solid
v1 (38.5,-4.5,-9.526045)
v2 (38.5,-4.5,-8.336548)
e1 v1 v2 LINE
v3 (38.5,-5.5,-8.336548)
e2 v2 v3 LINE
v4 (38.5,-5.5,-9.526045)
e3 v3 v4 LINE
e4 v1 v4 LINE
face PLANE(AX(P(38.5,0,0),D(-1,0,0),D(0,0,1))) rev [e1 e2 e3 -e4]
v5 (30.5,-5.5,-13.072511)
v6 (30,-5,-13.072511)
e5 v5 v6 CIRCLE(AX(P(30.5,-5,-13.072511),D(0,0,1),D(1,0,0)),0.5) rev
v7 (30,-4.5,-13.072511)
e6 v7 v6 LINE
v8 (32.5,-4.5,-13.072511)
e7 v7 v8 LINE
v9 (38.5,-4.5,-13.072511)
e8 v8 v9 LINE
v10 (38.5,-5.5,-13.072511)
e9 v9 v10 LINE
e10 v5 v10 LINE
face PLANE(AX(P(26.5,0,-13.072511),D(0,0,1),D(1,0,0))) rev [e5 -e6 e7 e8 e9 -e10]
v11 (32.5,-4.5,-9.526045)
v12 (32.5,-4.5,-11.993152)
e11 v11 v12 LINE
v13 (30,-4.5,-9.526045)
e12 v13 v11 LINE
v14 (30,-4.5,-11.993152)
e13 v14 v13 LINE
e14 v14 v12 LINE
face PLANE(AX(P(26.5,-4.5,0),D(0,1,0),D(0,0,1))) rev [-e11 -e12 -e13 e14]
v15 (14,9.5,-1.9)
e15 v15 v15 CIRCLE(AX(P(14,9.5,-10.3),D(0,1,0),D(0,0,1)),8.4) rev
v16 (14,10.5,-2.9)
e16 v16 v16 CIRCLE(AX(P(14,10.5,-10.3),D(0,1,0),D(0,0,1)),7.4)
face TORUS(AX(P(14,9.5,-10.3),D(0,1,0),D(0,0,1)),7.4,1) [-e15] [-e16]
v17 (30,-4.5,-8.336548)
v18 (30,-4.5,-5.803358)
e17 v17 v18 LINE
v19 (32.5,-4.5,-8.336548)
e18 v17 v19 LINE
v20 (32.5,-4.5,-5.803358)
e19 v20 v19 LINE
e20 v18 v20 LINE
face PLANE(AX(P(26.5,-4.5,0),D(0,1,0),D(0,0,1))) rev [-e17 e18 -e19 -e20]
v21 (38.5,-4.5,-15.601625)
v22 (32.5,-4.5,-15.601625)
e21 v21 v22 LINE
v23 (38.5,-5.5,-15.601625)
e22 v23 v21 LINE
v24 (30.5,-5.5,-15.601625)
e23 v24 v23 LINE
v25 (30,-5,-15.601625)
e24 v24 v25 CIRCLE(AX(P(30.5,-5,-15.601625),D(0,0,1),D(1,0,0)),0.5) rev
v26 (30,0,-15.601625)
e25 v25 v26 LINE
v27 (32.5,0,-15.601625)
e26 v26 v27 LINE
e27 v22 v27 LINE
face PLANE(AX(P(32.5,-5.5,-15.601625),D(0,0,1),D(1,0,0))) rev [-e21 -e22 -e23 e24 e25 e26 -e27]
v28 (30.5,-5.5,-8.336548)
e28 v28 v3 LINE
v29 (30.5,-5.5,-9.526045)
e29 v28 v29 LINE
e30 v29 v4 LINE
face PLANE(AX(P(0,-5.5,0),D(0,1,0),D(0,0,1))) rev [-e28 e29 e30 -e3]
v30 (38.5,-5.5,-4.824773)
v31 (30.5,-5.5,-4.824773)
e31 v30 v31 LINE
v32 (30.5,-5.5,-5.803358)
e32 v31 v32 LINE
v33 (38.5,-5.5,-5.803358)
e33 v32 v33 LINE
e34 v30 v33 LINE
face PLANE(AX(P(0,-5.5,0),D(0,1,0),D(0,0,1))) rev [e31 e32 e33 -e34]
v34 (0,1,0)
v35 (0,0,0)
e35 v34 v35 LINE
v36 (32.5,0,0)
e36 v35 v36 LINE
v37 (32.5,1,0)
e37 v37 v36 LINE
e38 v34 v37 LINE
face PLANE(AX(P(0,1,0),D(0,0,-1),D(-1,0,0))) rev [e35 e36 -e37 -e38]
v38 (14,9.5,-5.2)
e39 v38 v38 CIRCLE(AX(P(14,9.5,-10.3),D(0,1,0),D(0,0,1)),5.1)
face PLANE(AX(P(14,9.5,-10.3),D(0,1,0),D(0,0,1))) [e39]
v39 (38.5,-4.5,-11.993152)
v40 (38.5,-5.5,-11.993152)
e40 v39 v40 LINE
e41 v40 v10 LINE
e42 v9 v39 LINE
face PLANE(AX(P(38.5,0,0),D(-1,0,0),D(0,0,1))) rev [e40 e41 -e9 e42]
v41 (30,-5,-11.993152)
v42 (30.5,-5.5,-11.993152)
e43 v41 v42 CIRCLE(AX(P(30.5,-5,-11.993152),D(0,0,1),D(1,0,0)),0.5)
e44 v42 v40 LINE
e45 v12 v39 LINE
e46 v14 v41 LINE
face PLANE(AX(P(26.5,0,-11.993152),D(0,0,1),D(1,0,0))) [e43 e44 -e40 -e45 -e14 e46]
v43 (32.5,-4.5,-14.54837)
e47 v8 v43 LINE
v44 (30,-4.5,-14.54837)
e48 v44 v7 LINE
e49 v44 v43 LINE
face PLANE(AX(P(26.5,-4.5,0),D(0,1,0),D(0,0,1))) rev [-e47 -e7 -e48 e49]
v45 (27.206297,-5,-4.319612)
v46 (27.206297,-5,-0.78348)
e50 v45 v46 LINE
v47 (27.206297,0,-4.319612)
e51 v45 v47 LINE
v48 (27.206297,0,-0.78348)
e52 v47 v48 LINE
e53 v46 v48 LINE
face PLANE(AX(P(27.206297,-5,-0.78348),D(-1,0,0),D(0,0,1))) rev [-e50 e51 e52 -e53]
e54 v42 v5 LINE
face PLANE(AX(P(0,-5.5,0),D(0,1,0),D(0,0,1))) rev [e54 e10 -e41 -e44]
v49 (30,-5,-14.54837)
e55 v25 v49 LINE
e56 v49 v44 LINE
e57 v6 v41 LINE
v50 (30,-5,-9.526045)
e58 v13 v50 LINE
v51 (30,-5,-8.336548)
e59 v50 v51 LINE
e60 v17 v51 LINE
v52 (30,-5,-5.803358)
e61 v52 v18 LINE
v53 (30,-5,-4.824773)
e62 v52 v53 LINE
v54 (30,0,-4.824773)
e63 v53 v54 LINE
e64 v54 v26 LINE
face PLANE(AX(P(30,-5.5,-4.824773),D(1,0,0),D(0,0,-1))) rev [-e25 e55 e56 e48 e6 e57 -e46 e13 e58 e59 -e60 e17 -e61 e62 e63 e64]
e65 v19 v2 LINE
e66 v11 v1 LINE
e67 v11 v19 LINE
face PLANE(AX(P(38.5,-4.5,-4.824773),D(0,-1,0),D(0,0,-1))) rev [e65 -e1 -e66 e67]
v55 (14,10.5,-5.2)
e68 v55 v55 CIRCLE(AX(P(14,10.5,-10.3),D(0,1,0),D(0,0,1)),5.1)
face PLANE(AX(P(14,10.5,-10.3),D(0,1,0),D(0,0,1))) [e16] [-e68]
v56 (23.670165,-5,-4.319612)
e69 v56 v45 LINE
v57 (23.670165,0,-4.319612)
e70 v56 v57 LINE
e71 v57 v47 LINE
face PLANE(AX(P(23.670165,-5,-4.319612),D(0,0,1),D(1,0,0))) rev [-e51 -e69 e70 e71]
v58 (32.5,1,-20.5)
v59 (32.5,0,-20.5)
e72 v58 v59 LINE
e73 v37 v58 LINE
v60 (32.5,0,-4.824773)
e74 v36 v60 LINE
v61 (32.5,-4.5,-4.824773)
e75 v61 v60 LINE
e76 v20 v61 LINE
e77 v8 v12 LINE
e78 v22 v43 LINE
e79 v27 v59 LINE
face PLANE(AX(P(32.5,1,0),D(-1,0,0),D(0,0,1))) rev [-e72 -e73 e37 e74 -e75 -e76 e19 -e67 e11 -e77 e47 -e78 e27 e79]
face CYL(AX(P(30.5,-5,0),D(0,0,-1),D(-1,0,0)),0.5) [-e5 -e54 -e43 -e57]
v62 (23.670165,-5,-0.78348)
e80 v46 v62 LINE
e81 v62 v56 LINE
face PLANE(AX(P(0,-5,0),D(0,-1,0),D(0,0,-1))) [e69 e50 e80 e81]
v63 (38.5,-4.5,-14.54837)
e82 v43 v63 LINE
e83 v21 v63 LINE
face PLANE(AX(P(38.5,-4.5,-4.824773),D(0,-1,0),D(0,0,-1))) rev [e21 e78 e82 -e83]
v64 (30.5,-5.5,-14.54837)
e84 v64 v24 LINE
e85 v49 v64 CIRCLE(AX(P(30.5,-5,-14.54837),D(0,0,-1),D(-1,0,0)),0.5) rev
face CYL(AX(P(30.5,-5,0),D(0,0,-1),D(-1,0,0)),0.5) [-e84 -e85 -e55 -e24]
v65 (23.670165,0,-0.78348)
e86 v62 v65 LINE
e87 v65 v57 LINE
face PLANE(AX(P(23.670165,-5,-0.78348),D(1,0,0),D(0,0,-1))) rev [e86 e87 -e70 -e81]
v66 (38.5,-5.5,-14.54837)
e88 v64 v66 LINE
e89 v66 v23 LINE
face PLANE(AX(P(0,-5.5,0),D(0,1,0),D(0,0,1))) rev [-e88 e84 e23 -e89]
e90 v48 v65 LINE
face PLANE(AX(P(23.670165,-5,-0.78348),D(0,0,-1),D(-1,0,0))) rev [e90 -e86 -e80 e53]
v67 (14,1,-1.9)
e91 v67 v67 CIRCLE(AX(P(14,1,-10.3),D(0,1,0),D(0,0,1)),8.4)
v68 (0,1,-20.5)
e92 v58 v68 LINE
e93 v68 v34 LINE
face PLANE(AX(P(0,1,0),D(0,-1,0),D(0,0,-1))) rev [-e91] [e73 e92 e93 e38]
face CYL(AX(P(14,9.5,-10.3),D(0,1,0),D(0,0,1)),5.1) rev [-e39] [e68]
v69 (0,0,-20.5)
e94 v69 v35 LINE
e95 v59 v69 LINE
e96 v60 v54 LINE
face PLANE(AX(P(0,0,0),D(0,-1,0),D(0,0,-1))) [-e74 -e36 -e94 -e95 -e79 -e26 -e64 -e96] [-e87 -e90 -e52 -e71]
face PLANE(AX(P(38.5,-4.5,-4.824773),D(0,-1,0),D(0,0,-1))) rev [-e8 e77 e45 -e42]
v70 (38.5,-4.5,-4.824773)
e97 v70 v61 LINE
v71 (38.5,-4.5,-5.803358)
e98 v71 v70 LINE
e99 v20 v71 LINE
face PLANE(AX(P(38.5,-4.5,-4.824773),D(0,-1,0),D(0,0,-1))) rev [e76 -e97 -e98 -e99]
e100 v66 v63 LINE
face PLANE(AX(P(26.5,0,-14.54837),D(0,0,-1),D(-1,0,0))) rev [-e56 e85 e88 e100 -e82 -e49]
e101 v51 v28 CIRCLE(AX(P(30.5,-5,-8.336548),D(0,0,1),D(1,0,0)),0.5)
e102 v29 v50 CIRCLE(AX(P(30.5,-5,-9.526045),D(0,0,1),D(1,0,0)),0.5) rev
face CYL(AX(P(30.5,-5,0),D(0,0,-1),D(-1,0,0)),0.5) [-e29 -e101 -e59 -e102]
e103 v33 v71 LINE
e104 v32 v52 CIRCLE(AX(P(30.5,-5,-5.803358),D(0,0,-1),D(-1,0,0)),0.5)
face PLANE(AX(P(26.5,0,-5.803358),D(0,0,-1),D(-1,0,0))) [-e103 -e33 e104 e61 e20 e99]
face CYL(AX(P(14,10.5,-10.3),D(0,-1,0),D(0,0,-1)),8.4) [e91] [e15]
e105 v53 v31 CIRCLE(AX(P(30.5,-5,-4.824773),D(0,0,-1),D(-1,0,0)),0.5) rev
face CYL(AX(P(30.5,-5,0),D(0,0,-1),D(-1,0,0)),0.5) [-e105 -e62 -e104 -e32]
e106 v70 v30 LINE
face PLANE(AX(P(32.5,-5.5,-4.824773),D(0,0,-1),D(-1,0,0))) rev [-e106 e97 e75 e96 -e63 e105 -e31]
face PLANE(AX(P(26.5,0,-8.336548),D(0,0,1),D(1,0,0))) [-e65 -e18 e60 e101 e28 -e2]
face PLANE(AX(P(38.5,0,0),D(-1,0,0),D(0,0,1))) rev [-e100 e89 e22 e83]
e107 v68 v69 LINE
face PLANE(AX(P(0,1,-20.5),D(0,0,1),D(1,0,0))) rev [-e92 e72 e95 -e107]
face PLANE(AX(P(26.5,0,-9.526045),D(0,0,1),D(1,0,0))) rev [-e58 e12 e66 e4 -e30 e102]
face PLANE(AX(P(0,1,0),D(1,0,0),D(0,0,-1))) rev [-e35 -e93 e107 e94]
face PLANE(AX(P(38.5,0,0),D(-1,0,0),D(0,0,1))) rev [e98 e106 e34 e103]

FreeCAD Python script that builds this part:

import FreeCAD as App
import Part
import Sketcher
Q = App.Units.Quantity


def edges_at(feature, points):
    """Names of the edges that pass closest to the given points."""
    edges = feature.Shape.Edges
    near = lambda p: min(range(len(edges)), key=lambda i: edges[i].distToShape(Part.Vertex(*p))[0])
    return sorted({f"Edge{near(p) + 1}" for p in points})

doc = App.newDocument("Part")
body = doc.addObject("PartDesign::Body", "Body")

# Sketch on XZ plane
sketch1 = doc.addObject("Sketcher::SketchObject", "Sketch")
body.addObject(sketch1)
sketch1.AttachmentSupport = (doc.XZ_Plane, [""])
sketch1.MapMode = "FlatFace"
sketch1.addGeometry([
    Part.LineSegment(App.Vector(0, -20, 0), App.Vector(0, 0, 0)),
    Part.LineSegment(App.Vector(0, 0, 0), App.Vector(32, 0, 0)),
    Part.LineSegment(App.Vector(32, 0, 0), App.Vector(32, -20, 0)),
    Part.LineSegment(App.Vector(32, -20, 0), App.Vector(0, -20, 0)),
], False)
sketch1.addConstraint([
    Sketcher.Constraint("Coincident", 0, 2, 1, 1),
    Sketcher.Constraint("Coincident", 1, 2, 2, 1),
    Sketcher.Constraint("Coincident", 2, 2, 3, 1),
    Sketcher.Constraint("Coincident", 3, 2, 0, 1),
    Sketcher.Constraint("Vertical", 0),
    Sketcher.Constraint("Horizontal", 1),
    Sketcher.Constraint("Vertical", 2),
    Sketcher.Constraint("Horizontal", 3),
    Sketcher.Constraint("Coincident", 0, 2, -1, 1),
    Sketcher.Constraint("DistanceX", 1, 1, 1, 2, Q("32.5 mm")),
    Sketcher.Constraint("DistanceY", 0, 1, 0, 2, Q("20.5 mm")),
])
pad1 = doc.addObject("PartDesign::Pad", "Pad")
body.addObject(pad1)
pad1.Profile = sketch1
pad1.Length = 1
pad1.Reversed = True

# Sketch on XZ plane
sketch2 = doc.addObject("Sketcher::SketchObject", "Sketch001")
body.addObject(sketch2)
sketch2.AttachmentSupport = (doc.XZ_Plane, [""])
sketch2.MapMode = "FlatFace"
sketch2.AttachmentOffset = App.Placement(App.Vector(0, 0, -1), App.Rotation())
sketch2.addGeometry(Part.Circle(App.Vector(14, -10, 0), App.Vector(0, 0, 1), 8), False)
sketch2.addConstraint([
    Sketcher.Constraint("Diameter", 0, Q("16.8 mm")),
    Sketcher.Constraint("DistanceX", -1, 1, 0, 3, Q("14 mm")),
    Sketcher.Constraint("DistanceY", 0, 3, -1, 1, Q("10.3 mm")),
])
pad2 = doc.addObject("PartDesign::Pad", "Pad001")
body.addObject(pad2)
pad2.Profile = sketch2
pad2.Length = 9.5
pad2.Reversed = True

# Sketch on XZ plane
sketch3 = doc.addObject("Sketcher::SketchObject", "Sketch002")
body.addObject(sketch3)
sketch3.AttachmentSupport = (doc.XZ_Plane, [""])
sketch3.MapMode = "FlatFace"
sketch3.addGeometry([
    Part.LineSegment(App.Vector(30, -4.8, 0), App.Vector(30, -15.6, 0)),
    Part.LineSegment(App.Vector(30, -15.6, 0), App.Vector(32.5, -15.6, 0)),
    Part.LineSegment(App.Vector(32.5, -15.6, 0), App.Vector(32.5, -4.8, 0)),
    Part.LineSegment(App.Vector(32.5, -4.8, 0), App.Vector(30, -4.8, 0)),
], False)
sketch3.addConstraint([
    Sketcher.Constraint("Coincident", 0, 2, 1, 1),
    Sketcher.Constraint("Coincident", 1, 2, 2, 1),
    Sketcher.Constraint("Coincident", 2, 2, 3, 1),
    Sketcher.Constraint("Coincident", 3, 2, 0, 1),
    Sketcher.Constraint("Vertical", 0),
    Sketcher.Constraint("Horizontal", 1),
    Sketcher.Constraint("Vertical", 2),
    Sketcher.Constraint("Horizontal", 3),
    Sketcher.Constraint("DistanceX", 1, 1, 1, 2, Q("2.5 mm")),
    Sketcher.Constraint("DistanceX", -1, 1, 0, 2, Q("30 mm")),
    Sketcher.Constraint("DistanceY", 0, 2, 0, 1, Q("10.776851 mm")),
    Sketcher.Constraint("DistanceY", 0, 2, -1, 1, Q("15.601625 mm")),
])
pad3 = doc.addObject("PartDesign::Pad", "Pad002")
body.addObject(pad3)
pad3.Profile = sketch3
pad3.Length = 5.5

# Sketch on YZ plane
sketch4 = doc.addObject("Sketcher::SketchObject", "Sketch003")
body.addObject(sketch4)
sketch4.AttachmentSupport = (doc.YZ_Plane, [""])
sketch4.MapMode = "FlatFace"
sketch4.AttachmentOffset = App.Placement(App.Vector(0, 0, 32.5), App.Rotation())
sketch4.addGeometry([
    Part.LineSegment(App.Vector(-4.5, -4.8, 0), App.Vector(-5.5, -4.8, 0)),
    Part.LineSegment(App.Vector(-5.5, -4.8, 0), App.Vector(-5.5, -15.6, 0)),
    Part.LineSegment(App.Vector(-5.5, -15.6, 0), App.Vector(-4.5, -15.6, 0)),
    Part.LineSegment(App.Vector(-4.5, -15.6, 0), App.Vector(-4.5, -4.8, 0)),
], False)
sketch4.addConstraint([
    Sketcher.Constraint("Coincident", 0, 2, 1, 1),
    Sketcher.Constraint("Coincident", 1, 2, 2, 1),
    Sketcher.Constraint("Coincident", 2, 2, 3, 1),
    Sketcher.Constraint("Coincident", 3, 2, 0, 1),
    Sketcher.Constraint("Horizontal", 0),
    Sketcher.Constraint("Vertical", 1),
    Sketcher.Constraint("Horizontal", 2),
    Sketcher.Constraint("Vertical", 3),
    Sketcher.Constraint("DistanceX", 0, 2, 0, 1, Q("1 mm")),
    Sketcher.Constraint("DistanceX", 0, 2, -1, 1, Q("5.5 mm")),
    Sketcher.Constraint("DistanceY", 1, 2, 1, 1, Q("10.776851 mm")),
    Sketcher.Constraint("DistanceY", 0, 2, -1, 1, Q("4.824773 mm")),
])
pad4 = doc.addObject("PartDesign::Pad", "Pad003")
body.addObject(pad4)
pad4.Profile = sketch4
pad4.Length = 6

# Sketch on XZ plane
sketch5 = doc.addObject("Sketcher::SketchObject", "Sketch004")
body.addObject(sketch5)
sketch5.AttachmentSupport = (doc.XZ_Plane, [""])
sketch5.MapMode = "FlatFace"
sketch5.addGeometry([
    Part.LineSegment(App.Vector(23.7, -0.8, 0), App.Vector(23.7, -4.3, 0)),
    Part.LineSegment(App.Vector(23.7, -4.3, 0), App.Vector(27.2, -4.3, 0)),
    Part.LineSegment(App.Vector(27.2, -4.3, 0), App.Vector(27.2, -0.8, 0)),
    Part.LineSegment(App.Vector(27.2, -0.8, 0), App.Vector(23.7, -0.8, 0)),
], False)
sketch5.addConstraint([
    Sketcher.Constraint("Coincident", 0, 2, 1, 1),
    Sketcher.Constraint("Coincident", 1, 2, 2, 1),
    Sketcher.Constraint("Coincident", 2, 2, 3, 1),
    Sketcher.Constraint("Coincident", 3, 2, 0, 1),
    Sketcher.Constraint("Vertical", 0),
    Sketcher.Constraint("Horizontal", 1),
    Sketcher.Constraint("Vertical", 2),
    Sketcher.Constraint("Horizontal", 3),
    Sketcher.Constraint("Equal", 3, 0),
    Sketcher.Constraint("DistanceX", 1, 1, 1, 2, Q("3.536132 mm")),
    Sketcher.Constraint("DistanceY", 0, 2, -1, 1, Q("4.319612 mm")),
    Sketcher.Constraint("DistanceX", -1, 1, 0, 2, Q("23.670165 mm")),
])
pad5 = doc.addObject("PartDesign::Pad", "Pad004")
body.addObject(pad5)
pad5.Profile = sketch5
pad5.Length = 5

# Sketch on XZ plane
sketch6 = doc.addObject("Sketcher::SketchObject", "Sketch005")
body.addObject(sketch6)
sketch6.AttachmentSupport = (doc.XZ_Plane, [""])
sketch6.MapMode = "FlatFace"
sketch6.AttachmentOffset = App.Placement(App.Vector(0, 0, -10.5), App.Rotation())
sketch6.addGeometry(Part.Circle(App.Vector(14, -10, 0), App.Vector(0, 0, 1), 5), False)
sketch6.addConstraint([
    Sketcher.Constraint("Diameter", 0, Q("10.2 mm")),
    Sketcher.Constraint("DistanceX", -1, 1, 0, 3, Q("14 mm")),
    Sketcher.Constraint("DistanceY", 0, 3, -1, 1, Q("10.3 mm")),
])
pocket1 = doc.addObject("PartDesign::Pocket", "Pocket")
body.addObject(pocket1)
pocket1.Profile = sketch6
pocket1.Length = 1
pocket1.Reversed = True
doc.recompute()

fillet = doc.addObject("PartDesign::Fillet", "Fillet")
body.addObject(fillet)
fillet.Base = (pocket1, edges_at(pocket1, [(14, 10.5, -18.7)]))
fillet.Radius = 1

# Sketch on YZ plane
sketch7 = doc.addObject("Sketcher::SketchObject", "Sketch006")
body.addObject(sketch7)
sketch7.AttachmentSupport = (doc.YZ_Plane, [""])
sketch7.MapMode = "FlatFace"
sketch7.AttachmentOffset = App.Placement(App.Vector(0, 0, 38.5), App.Rotation())
sketch7.addGeometry([
    Part.LineSegment(App.Vector(-4.5, -5.8, 0), App.Vector(-5.5, -5.8, 0)),  # 0
    Part.LineSegment(App.Vector(-5.5, -5.8, 0), App.Vector(-5.5, -8.3, 0)),  # 1
    Part.LineSegment(App.Vector(-5.5, -8.3, 0), App.Vector(-4.5, -8.3, 0)),  # 2
    Part.LineSegment(App.Vector(-4.5, -8.3, 0), App.Vector(-4.5, -5.8, 0)),  # 3
    Part.LineSegment(App.Vector(-4.5, -9.5, 0), App.Vector(-5.5, -9.5, 0)),  # 4
    Part.LineSegment(App.Vector(-5.5, -9.5, 0), App.Vector(-5.5, -12, 0)),  # 5
    Part.LineSegment(App.Vector(-5.5, -12, 0), App.Vector(-4.5, -12, 0)),  # 6
    Part.LineSegment(App.Vector(-4.5, -12, 0), App.Vector(-4.5, -9.5, 0)),  # 7
    Part.LineSegment(App.Vector(-4.5, -13.1, 0), App.Vector(-5.5, -13.1, 0)),  # 8
    Part.LineSegment(App.Vector(-5.5, -13.1, 0), App.Vector(-5.5, -14.5, 0)),  # 9
    Part.LineSegment(App.Vector(-5.5, -14.5, 0), App.Vector(-4.5, -14.5, 0)),  # 10
    Part.LineSegment(App.Vector(-4.5, -14.5, 0), App.Vector(-4.5, -13.1, 0)),  # 11
], False)
sketch7.addConstraint([
    Sketcher.Constraint("Coincident", 0, 2, 1, 1),
    Sketcher.Constraint("Coincident", 1, 2, 2, 1),
    Sketcher.Constraint("Coincident", 2, 2, 3, 1),
    Sketcher.Constraint("Coincident", 3, 2, 0, 1),
    Sketcher.Constraint("Coincident", 4, 2, 5, 1),
    Sketcher.Constraint("Coincident", 5, 2, 6, 1),
    Sketcher.Constraint("Coincident", 6, 2, 7, 1),
    Sketcher.Constraint("Coincident", 7, 2, 4, 1),
    Sketcher.Constraint("Coincident", 8, 2, 9, 1),
    Sketcher.Constraint("Coincident", 9, 2, 10, 1),
    Sketcher.Constraint("Coincident", 10, 2, 11, 1),
    Sketcher.Constraint("Coincident", 11, 2, 8, 1),
    Sketcher.Constraint("Horizontal", 0),
    Sketcher.Constraint("Vertical", 1),
    Sketcher.Constraint("Horizontal", 2),
    Sketcher.Constraint("Vertical", 3),
    Sketcher.Constraint("Horizontal", 4),
    Sketcher.Constraint("Vertical", 5),
    Sketcher.Constraint("Horizontal", 6),
    Sketcher.Constraint("Vertical", 7),
    Sketcher.Constraint("Horizontal", 8),
    Sketcher.Constraint("Vertical", 9),
    Sketcher.Constraint("Horizontal", 10),
    Sketcher.Constraint("Vertical", 11),
    Sketcher.Constraint("Vertical", 1, 2, 4, 2),
    Sketcher.Constraint("Vertical", 3, 2, 6, 2),
    Sketcher.Constraint("Vertical", 5, 2, 8, 2),
    Sketcher.Constraint("Vertical", 7, 2, 10, 2),
    Sketcher.Constraint("DistanceX", 0, 2, 0, 1, Q("1 mm")),
    Sketcher.Constraint("DistanceX", 0, 2, -1, 1, Q("5.5 mm")),
    Sketcher.Constraint("DistanceY", 1, 2, 1, 1, Q("2.53319 mm")),
    Sketcher.Constraint("DistanceY", 9, 2, 9, 1, Q("1.475858 mm")),
    Sketcher.Constraint("DistanceY", 5, 2, 5, 1, Q("2.467107 mm")),
    Sketcher.Constraint("DistanceY", 8, 2, -1, 1, Q("13.072511 mm")),
    Sketcher.Constraint("DistanceY", 8, 2, 5, 2, Q("1.079359 mm")),
    Sketcher.Constraint("DistanceY", 0, 2, -1, 1, Q("5.803358 mm")),
])
pocket2 = doc.addObject("PartDesign::Pocket", "Pocket001")
body.addObject(pocket2)
pocket2.Profile = sketch7
pocket2.Length = 12
doc.recompute()

fillet2 = doc.addObject("PartDesign::Fillet", "Fillet001")
body.addObject(fillet2)
fillet2.Base = (pocket2, edges_at(pocket2, [
    (30, -5.5, -5.314),
    (30, -5.5, -8.931),
    (30, -5.5, -12.533),
    (30, -5.5, -15.075),
]))
fillet2.Radius = 0.5

doc.recompute()
